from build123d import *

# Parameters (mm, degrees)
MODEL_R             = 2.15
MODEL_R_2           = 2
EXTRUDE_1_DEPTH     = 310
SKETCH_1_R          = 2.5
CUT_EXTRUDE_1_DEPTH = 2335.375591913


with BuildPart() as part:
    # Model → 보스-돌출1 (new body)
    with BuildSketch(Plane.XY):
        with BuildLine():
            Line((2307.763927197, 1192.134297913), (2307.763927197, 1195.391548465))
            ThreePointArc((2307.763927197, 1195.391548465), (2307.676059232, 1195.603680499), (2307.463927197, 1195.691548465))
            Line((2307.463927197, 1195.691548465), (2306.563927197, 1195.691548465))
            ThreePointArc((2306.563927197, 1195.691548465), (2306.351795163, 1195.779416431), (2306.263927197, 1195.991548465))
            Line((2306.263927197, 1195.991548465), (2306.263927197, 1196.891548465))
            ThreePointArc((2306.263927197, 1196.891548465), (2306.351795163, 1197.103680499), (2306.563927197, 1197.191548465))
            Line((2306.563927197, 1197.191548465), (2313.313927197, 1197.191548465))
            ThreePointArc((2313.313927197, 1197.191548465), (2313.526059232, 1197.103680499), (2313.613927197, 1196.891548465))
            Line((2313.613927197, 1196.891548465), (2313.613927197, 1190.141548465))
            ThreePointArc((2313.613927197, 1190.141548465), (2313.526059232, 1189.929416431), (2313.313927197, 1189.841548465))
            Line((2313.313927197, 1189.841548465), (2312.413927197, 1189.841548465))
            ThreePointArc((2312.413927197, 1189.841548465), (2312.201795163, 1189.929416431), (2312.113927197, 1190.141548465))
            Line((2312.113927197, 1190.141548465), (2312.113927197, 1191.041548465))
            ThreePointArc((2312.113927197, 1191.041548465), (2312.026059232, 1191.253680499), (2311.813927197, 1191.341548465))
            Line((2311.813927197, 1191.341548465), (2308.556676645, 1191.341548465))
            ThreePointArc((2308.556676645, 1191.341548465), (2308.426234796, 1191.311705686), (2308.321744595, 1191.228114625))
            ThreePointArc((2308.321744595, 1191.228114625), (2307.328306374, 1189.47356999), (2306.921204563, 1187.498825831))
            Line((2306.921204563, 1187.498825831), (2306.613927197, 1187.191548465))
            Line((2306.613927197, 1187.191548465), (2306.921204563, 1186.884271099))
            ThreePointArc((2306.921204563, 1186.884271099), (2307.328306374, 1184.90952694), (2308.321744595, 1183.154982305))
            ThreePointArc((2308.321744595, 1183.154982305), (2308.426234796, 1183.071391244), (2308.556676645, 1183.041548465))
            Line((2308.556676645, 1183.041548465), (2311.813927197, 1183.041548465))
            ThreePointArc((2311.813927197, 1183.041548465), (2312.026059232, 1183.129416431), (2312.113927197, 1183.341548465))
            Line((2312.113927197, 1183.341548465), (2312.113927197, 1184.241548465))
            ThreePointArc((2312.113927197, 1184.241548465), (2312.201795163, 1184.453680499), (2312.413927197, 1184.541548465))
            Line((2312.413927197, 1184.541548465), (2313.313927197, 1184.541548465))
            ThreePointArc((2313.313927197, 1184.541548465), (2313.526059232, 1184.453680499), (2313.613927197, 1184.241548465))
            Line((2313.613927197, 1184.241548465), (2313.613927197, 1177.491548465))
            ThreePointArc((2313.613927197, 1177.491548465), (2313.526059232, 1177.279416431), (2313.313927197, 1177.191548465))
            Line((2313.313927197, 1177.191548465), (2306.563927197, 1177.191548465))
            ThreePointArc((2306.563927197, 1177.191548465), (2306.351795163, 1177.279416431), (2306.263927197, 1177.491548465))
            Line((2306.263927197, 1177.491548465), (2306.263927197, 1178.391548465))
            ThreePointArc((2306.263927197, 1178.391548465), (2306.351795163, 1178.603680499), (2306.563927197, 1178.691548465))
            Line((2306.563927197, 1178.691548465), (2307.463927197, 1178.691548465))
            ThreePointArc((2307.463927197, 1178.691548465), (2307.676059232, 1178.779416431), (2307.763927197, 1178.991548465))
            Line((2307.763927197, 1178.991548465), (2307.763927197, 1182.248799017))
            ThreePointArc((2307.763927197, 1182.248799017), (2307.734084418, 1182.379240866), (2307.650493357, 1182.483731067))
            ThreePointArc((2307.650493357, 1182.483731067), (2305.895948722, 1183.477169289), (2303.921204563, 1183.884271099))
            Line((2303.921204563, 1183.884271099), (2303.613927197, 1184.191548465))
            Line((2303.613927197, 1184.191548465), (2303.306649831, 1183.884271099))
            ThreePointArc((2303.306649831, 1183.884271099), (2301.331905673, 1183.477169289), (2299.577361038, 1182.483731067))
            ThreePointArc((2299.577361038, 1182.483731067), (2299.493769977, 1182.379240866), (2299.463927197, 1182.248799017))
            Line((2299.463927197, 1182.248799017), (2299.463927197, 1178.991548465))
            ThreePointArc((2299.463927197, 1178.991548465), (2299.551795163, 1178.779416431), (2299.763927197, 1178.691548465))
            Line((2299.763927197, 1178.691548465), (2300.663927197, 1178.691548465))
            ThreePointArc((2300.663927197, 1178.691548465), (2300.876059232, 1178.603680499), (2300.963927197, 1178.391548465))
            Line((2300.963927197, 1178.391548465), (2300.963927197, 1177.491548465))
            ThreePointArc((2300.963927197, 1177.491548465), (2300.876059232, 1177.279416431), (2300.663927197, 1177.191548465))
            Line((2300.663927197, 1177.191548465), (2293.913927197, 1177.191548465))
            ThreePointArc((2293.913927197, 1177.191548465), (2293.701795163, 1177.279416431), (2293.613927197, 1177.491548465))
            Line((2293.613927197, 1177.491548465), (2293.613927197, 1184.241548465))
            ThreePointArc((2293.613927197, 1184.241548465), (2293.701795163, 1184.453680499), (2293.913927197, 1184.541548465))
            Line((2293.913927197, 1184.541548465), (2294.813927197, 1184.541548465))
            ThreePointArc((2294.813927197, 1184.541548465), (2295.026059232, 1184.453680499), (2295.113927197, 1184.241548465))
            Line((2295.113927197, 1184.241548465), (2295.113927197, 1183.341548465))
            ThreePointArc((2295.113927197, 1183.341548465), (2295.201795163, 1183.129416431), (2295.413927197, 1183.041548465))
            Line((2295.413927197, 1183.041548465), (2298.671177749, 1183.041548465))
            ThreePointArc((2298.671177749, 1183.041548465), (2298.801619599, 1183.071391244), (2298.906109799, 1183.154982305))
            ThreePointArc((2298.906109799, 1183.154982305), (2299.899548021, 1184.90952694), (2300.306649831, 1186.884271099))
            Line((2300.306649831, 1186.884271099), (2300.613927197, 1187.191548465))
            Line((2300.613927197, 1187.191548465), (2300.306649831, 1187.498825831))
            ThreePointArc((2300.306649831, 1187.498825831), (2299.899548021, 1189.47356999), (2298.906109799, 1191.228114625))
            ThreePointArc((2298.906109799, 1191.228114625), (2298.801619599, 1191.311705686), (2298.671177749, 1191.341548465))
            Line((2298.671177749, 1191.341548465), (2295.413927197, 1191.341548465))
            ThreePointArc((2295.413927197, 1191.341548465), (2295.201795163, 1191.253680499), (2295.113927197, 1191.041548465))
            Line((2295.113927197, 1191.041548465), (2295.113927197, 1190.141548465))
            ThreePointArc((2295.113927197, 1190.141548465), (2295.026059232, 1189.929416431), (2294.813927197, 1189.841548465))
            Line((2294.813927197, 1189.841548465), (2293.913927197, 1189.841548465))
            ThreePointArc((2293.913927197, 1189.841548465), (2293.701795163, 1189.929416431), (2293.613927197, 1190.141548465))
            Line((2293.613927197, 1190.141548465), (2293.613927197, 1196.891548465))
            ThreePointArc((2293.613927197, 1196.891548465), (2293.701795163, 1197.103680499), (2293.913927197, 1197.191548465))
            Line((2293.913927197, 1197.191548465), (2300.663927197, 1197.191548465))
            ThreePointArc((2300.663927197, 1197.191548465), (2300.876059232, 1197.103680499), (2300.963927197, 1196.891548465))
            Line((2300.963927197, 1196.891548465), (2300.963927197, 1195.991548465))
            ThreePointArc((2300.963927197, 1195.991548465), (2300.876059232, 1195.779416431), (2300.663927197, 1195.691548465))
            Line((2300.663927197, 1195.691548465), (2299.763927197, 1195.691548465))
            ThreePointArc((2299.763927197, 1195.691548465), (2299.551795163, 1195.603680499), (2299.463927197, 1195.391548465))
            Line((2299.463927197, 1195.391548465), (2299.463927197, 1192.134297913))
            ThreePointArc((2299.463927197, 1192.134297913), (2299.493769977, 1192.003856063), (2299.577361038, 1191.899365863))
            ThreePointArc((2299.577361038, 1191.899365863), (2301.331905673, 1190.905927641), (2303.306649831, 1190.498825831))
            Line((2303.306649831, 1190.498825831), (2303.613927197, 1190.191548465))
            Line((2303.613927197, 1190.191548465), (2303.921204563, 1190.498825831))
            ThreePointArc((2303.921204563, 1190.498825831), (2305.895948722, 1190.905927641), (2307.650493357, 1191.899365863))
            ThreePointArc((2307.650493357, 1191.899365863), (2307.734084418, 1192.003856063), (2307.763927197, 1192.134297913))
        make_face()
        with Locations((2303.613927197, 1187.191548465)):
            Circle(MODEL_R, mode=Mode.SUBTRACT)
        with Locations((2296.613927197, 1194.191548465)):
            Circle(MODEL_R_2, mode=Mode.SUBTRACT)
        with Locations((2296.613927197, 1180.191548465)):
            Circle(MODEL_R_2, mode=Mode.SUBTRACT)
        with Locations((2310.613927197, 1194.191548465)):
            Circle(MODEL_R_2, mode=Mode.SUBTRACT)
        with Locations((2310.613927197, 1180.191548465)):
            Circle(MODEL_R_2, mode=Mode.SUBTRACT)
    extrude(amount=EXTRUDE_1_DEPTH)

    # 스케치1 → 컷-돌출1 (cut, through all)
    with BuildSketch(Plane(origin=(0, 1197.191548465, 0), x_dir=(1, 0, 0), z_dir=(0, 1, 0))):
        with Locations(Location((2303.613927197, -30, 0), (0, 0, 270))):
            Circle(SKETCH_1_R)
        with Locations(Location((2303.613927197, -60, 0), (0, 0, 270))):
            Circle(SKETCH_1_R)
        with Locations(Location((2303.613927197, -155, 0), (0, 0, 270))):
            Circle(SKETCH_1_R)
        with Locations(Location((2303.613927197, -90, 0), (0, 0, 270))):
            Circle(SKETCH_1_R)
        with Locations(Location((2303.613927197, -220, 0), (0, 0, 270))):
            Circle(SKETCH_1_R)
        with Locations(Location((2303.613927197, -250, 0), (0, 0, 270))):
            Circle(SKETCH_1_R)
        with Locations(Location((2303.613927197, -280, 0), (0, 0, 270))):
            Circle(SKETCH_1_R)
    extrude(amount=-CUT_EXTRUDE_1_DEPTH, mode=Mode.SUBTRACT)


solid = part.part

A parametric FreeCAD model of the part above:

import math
import FreeCAD as App
import Part
import Sketcher

V = App.Vector

doc = App.newDocument("Part")
body = doc.addObject("PartDesign::Body", "Body")

sketch1 = doc.addObject("Sketcher::SketchObject", "Sketch")
body.addObject(sketch1)
sketch1.AttachmentSupport = (doc.XY_Plane, [""])
sketch1.MapMode = "FlatFace"
sketch1.addGeometry(Part.LineSegment(V(2307.763927, 1195.391548, 0), V(2307.763927, 1192.134298, 0)), False)
sketch1.addGeometry(Part.ArcOfCircle(Part.Circle(V(2307.463927, 1192.134298, 0), V(0, 0, 1), 0.3), math.radians(-51.545921), math.radians(0)), False)
sketch1.addGeometry(Part.ArcOfCircle(Part.Circle(V(2303.613927, 1196.982382, 0), V(0, 0, 1), 6.490833), math.radians(-87.286592), math.radians(-51.545921)), False)
sketch1.addGeometry(Part.LineSegment(V(2303.921205, 1190.498826, 0), V(2303.613927, 1190.191548, 0)), False)
sketch1.addGeometry(Part.LineSegment(V(2303.613927, 1190.191548, 0), V(2303.30665, 1190.498826, 0)), False)
sketch1.addGeometry(Part.ArcOfCircle(Part.Circle(V(2303.613927, 1196.982382, 0), V(0, 0, 1), 6.490833), math.radians(-128.454079), math.radians(-92.713408)), False)
sketch1.addGeometry(Part.ArcOfCircle(Part.Circle(V(2299.763927, 1192.134298, 0), V(0, 0, 1), 0.3), math.radians(-180), math.radians(-128.454079)), False)
sketch1.addGeometry(Part.LineSegment(V(2299.463927, 1192.134298, 0), V(2299.463927, 1195.391548, 0)), False)
sketch1.addGeometry(Part.ArcOfCircle(Part.Circle(V(2299.763927, 1195.391548, 0), V(0, 0, 1), 0.3), math.radians(90), math.radians(180)), False)
sketch1.addGeometry(Part.LineSegment(V(2299.763927, 1195.691548, 0), V(2300.663927, 1195.691548, 0)), False)
sketch1.addGeometry(Part.ArcOfCircle(Part.Circle(V(2300.663927, 1195.991548, 0), V(0, 0, 1), 0.3), math.radians(-90), math.radians(0)), False)
sketch1.addGeometry(Part.LineSegment(V(2300.963927, 1195.991548, 0), V(2300.963927, 1196.891548, 0)), False)
sketch1.addGeometry(Part.ArcOfCircle(Part.Circle(V(2300.663927, 1196.891548, 0), V(0, 0, 1), 0.3), math.radians(0), math.radians(90)), False)
sketch1.addGeometry(Part.LineSegment(V(2300.663927, 1197.191548, 0), V(2293.913927, 1197.191548, 0)), False)
sketch1.addGeometry(Part.ArcOfCircle(Part.Circle(V(2293.913927, 1196.891548, 0), V(0, 0, 1), 0.3), math.radians(90), math.radians(180)), False)
sketch1.addGeometry(Part.LineSegment(V(2293.613927, 1196.891548, 0), V(2293.613927, 1190.141548, 0)), False)
sketch1.addGeometry(Part.ArcOfCircle(Part.Circle(V(2293.913927, 1190.141548, 0), V(0, 0, 1), 0.3), math.radians(-180), math.radians(-90)), False)
sketch1.addGeometry(Part.LineSegment(V(2293.913927, 1189.841548, 0), V(2294.813927, 1189.841548, 0)), False)
sketch1.addGeometry(Part.ArcOfCircle(Part.Circle(V(2294.813927, 1190.141548, 0), V(0, 0, 1), 0.3), math.radians(-90), math.radians(0)), False)
sketch1.addGeometry(Part.LineSegment(V(2295.113927, 1190.141548, 0), V(2295.113927, 1191.041548, 0)), False)
sketch1.addGeometry(Part.ArcOfCircle(Part.Circle(V(2295.413927, 1191.041548, 0), V(0, 0, 1), 0.3), math.radians(90), math.radians(180)), False)
sketch1.addGeometry(Part.LineSegment(V(2295.413927, 1191.341548, 0), V(2298.671178, 1191.341548, 0)), False)
sketch1.addGeometry(Part.ArcOfCircle(Part.Circle(V(2298.671178, 1191.041548, 0), V(0, 0, 1), 0.3), math.radians(38.454079), math.radians(90)), False)
sketch1.addGeometry(Part.ArcOfCircle(Part.Circle(V(2293.823094, 1187.191548, 0), V(0, 0, 1), 6.490833), math.radians(2.713408), math.radians(38.454079)), False)
sketch1.addGeometry(Part.LineSegment(V(2300.30665, 1187.498826, 0), V(2300.613927, 1187.191548, 0)), False)
sketch1.addGeometry(Part.LineSegment(V(2300.613927, 1187.191548, 0), V(2300.30665, 1186.884271, 0)), False)
sketch1.addGeometry(Part.ArcOfCircle(Part.Circle(V(2293.823094, 1187.191548, 0), V(0, 0, 1), 6.490833), math.radians(-38.454079), math.radians(-2.713408)), False)
sketch1.addGeometry(Part.ArcOfCircle(Part.Circle(V(2298.671178, 1183.341548, 0), V(0, 0, 1), 0.3), math.radians(-90), math.radians(-38.454079)), False)
sketch1.addGeometry(Part.LineSegment(V(2298.671178, 1183.041548, 0), V(2295.413927, 1183.041548, 0)), False)
sketch1.addGeometry(Part.ArcOfCircle(Part.Circle(V(2295.413927, 1183.341548, 0), V(0, 0, 1), 0.3), math.radians(-180), math.radians(-90)), False)
sketch1.addGeometry(Part.LineSegment(V(2295.113927, 1183.341548, 0), V(2295.113927, 1184.241548, 0)), False)
sketch1.addGeometry(Part.ArcOfCircle(Part.Circle(V(2294.813927, 1184.241548, 0), V(0, 0, 1), 0.3), math.radians(0), math.radians(90)), False)
sketch1.addGeometry(Part.LineSegment(V(2294.813927, 1184.541548, 0), V(2293.913927, 1184.541548, 0)), False)
sketch1.addGeometry(Part.ArcOfCircle(Part.Circle(V(2293.913927, 1184.241548, 0), V(0, 0, 1), 0.3), math.radians(90), math.radians(180)), False)
sketch1.addGeometry(Part.LineSegment(V(2293.613927, 1184.241548, 0), V(2293.613927, 1177.491548, 0)), False)
sketch1.addGeometry(Part.ArcOfCircle(Part.Circle(V(2293.913927, 1177.491548, 0), V(0, 0, 1), 0.3), math.radians(-180), math.radians(-90)), False)
sketch1.addGeometry(Part.LineSegment(V(2293.913927, 1177.191548, 0), V(2300.663927, 1177.191548, 0)), False)
sketch1.addGeometry(Part.ArcOfCircle(Part.Circle(V(2300.663927, 1177.491548, 0), V(0, 0, 1), 0.3), math.radians(-90), math.radians(0)), False)
sketch1.addGeometry(Part.LineSegment(V(2300.963927, 1177.491548, 0), V(2300.963927, 1178.391548, 0)), False)
sketch1.addGeometry(Part.ArcOfCircle(Part.Circle(V(2300.663927, 1178.391548, 0), V(0, 0, 1), 0.3), math.radians(0), math.radians(90)), False)
sketch1.addGeometry(Part.LineSegment(V(2300.663927, 1178.691548, 0), V(2299.763927, 1178.691548, 0)), False)
sketch1.addGeometry(Part.ArcOfCircle(Part.Circle(V(2299.763927, 1178.991548, 0), V(0, 0, 1), 0.3), math.radians(-180), math.radians(-90)), False)
sketch1.addGeometry(Part.LineSegment(V(2299.463927, 1178.991548, 0), V(2299.463927, 1182.248799, 0)), False)
sketch1.addGeometry(Part.ArcOfCircle(Part.Circle(V(2299.763927, 1182.248799, 0), V(0, 0, 1), 0.3), math.radians(128.45408), math.radians(179.999999)), False)
sketch1.addGeometry(Part.ArcOfCircle(Part.Circle(V(2303.613927, 1177.400715, 0), V(0, 0, 1), 6.490833), math.radians(92.713408), math.radians(128.454079)), False)
sketch1.addGeometry(Part.LineSegment(V(2303.30665, 1183.884271, 0), V(2303.613927, 1184.191548, 0)), False)
sketch1.addGeometry(Part.LineSegment(V(2303.613927, 1184.191548, 0), V(2303.921205, 1183.884271, 0)), False)
sketch1.addGeometry(Part.ArcOfCircle(Part.Circle(V(2303.613927, 1177.400715, 0), V(0, 0, 1), 6.490833), math.radians(51.545921), math.radians(87.286592)), False)
sketch1.addGeometry(Part.ArcOfCircle(Part.Circle(V(2307.463927, 1182.248799, 0), V(0, 0, 1), 0.3), math.radians(0), math.radians(51.545921)), False)
sketch1.addGeometry(Part.LineSegment(V(2307.763927, 1182.248799, 0), V(2307.763927, 1178.991548, 0)), False)
sketch1.addGeometry(Part.ArcOfCircle(Part.Circle(V(2307.463927, 1178.991548, 0), V(0, 0, 1), 0.3), math.radians(-90), math.radians(0)), False)
sketch1.addGeometry(Part.LineSegment(V(2307.463927, 1178.691548, 0), V(2306.563927, 1178.691548, 0)), False)
sketch1.addGeometry(Part.ArcOfCircle(Part.Circle(V(2306.563927, 1178.391548, 0), V(0, 0, 1), 0.3), math.radians(90), math.radians(180)), False)
sketch1.addGeometry(Part.LineSegment(V(2306.263927, 1178.391548, 0), V(2306.263927, 1177.491548, 0)), False)
sketch1.addGeometry(Part.ArcOfCircle(Part.Circle(V(2306.563927, 1177.491548, 0), V(0, 0, 1), 0.3), math.radians(-180), math.radians(-90)), False)
sketch1.addGeometry(Part.LineSegment(V(2306.563927, 1177.191548, 0), V(2313.313927, 1177.191548, 0)), False)
sketch1.addGeometry(Part.ArcOfCircle(Part.Circle(V(2313.313927, 1177.491548, 0), V(0, 0, 1), 0.3), math.radians(-90), math.radians(0)), False)
sketch1.addGeometry(Part.LineSegment(V(2313.613927, 1177.491548, 0), V(2313.613927, 1184.241548, 0)), False)
sketch1.addGeometry(Part.ArcOfCircle(Part.Circle(V(2313.313927, 1184.241548, 0), V(0, 0, 1), 0.3), math.radians(0), math.radians(90)), False)
sketch1.addGeometry(Part.LineSegment(V(2313.313927, 1184.541548, 0), V(2312.413927, 1184.541548, 0)), False)
sketch1.addGeometry(Part.ArcOfCircle(Part.Circle(V(2312.413927, 1184.241548, 0), V(0, 0, 1), 0.3), math.radians(90), math.radians(180)), False)
sketch1.addGeometry(Part.LineSegment(V(2312.113927, 1184.241548, 0), V(2312.113927, 1183.341548, 0)), False)
sketch1.addGeometry(Part.ArcOfCircle(Part.Circle(V(2311.813927, 1183.341548, 0), V(0, 0, 1), 0.3), math.radians(-90), math.radians(0)), False)
sketch1.addGeometry(Part.LineSegment(V(2311.813927, 1183.041548, 0), V(2308.556677, 1183.041548, 0)), False)
sketch1.addGeometry(Part.ArcOfCircle(Part.Circle(V(2308.556677, 1183.341548, 0), V(0, 0, 1), 0.3), math.radians(-141.545921), math.radians(-90)), False)
sketch1.addGeometry(Part.ArcOfCircle(Part.Circle(V(2313.404761, 1187.191548, 0), V(0, 0, 1), 6.490833), math.radians(-177.286592), math.radians(-141.545921)), False)
sketch1.addGeometry(Part.LineSegment(V(2306.921205, 1186.884271, 0), V(2306.613927, 1187.191548, 0)), False)
sketch1.addGeometry(Part.LineSegment(V(2306.613927, 1187.191548, 0), V(2306.921205, 1187.498826, 0)), False)
sketch1.addGeometry(Part.ArcOfCircle(Part.Circle(V(2313.404761, 1187.191548, 0), V(0, 0, 1), 6.490833), math.radians(141.545921), math.radians(177.286592)), False)
sketch1.addGeometry(Part.ArcOfCircle(Part.Circle(V(2308.556677, 1191.041548, 0), V(0, 0, 1), 0.3), math.radians(90), math.radians(141.545921)), False)
sketch1.addGeometry(Part.LineSegment(V(2308.556677, 1191.341548, 0), V(2311.813927, 1191.341548, 0)), False)
sketch1.addGeometry(Part.ArcOfCircle(Part.Circle(V(2311.813927, 1191.041548, 0), V(0, 0, 1), 0.3), math.radians(0), math.radians(90)), False)
sketch1.addGeometry(Part.LineSegment(V(2312.113927, 1191.041548, 0), V(2312.113927, 1190.141548, 0)), False)
sketch1.addGeometry(Part.ArcOfCircle(Part.Circle(V(2312.413927, 1190.141548, 0), V(0, 0, 1), 0.3), math.radians(-180), math.radians(-90)), False)
sketch1.addGeometry(Part.LineSegment(V(2312.413927, 1189.841548, 0), V(2313.313927, 1189.841548, 0)), False)
sketch1.addGeometry(Part.ArcOfCircle(Part.Circle(V(2313.313927, 1190.141548, 0), V(0, 0, 1), 0.3), math.radians(-90), math.radians(0)), False)
sketch1.addGeometry(Part.LineSegment(V(2313.613927, 1190.141548, 0), V(2313.613927, 1196.891548, 0)), False)
sketch1.addGeometry(Part.ArcOfCircle(Part.Circle(V(2313.313927, 1196.891548, 0), V(0, 0, 1), 0.3), math.radians(0), math.radians(90)), False)
sketch1.addGeometry(Part.LineSegment(V(2313.313927, 1197.191548, 0), V(2306.563927, 1197.191548, 0)), False)
sketch1.addGeometry(Part.ArcOfCircle(Part.Circle(V(2306.563927, 1196.891548, 0), V(0, 0, 1), 0.3), math.radians(90), math.radians(180)), False)
sketch1.addGeometry(Part.LineSegment(V(2306.263927, 1196.891548, 0), V(2306.263927, 1195.991548, 0)), False)
sketch1.addGeometry(Part.ArcOfCircle(Part.Circle(V(2306.563927, 1195.991548, 0), V(0, 0, 1), 0.3), math.radians(-180), math.radians(-90)), False)
sketch1.addGeometry(Part.LineSegment(V(2306.563927, 1195.691548, 0), V(2307.463927, 1195.691548, 0)), False)
sketch1.addGeometry(Part.ArcOfCircle(Part.Circle(V(2307.463927, 1195.391548, 0), V(0, 0, 1), 0.3), math.radians(0), math.radians(90)), False)
sketch1.addGeometry(Part.Circle(V(2310.613927, 1180.191548, 0), V(0, 0, 1), 2), False)
sketch1.addGeometry(Part.Circle(V(2296.613927, 1180.191548, 0), V(0, 0, 1), 2), False)
sketch1.addGeometry(Part.Circle(V(2310.613927, 1194.191548, 0), V(0, 0, 1), 2), False)
sketch1.addGeometry(Part.Circle(V(2303.613927, 1187.191548, 0), V(0, 0, 1), 2.15), False)
sketch1.addGeometry(Part.Circle(V(2296.613927, 1194.191548, 0), V(0, 0, 1), 2), False)
sketch1.addConstraint(Sketcher.Constraint("Tangent", 0, 2, 1, 2))
sketch1.addConstraint(Sketcher.Constraint("Tangent", 1, 1, 2, 2))
sketch1.addConstraint(Sketcher.Constraint("Coincident", 2, 1, 3, 1))
sketch1.addConstraint(Sketcher.Constraint("Coincident", 3, 2, 4, 1))
sketch1.addConstraint(Sketcher.Constraint("Coincident", 4, 2, 5, 2))
sketch1.addConstraint(Sketcher.Constraint("Tangent", 5, 1, 6, 2))
sketch1.addConstraint(Sketcher.Constraint("Tangent", 6, 1, 7, 1))
sketch1.addConstraint(Sketcher.Constraint("Tangent", 7, 2, 8, 2))
sketch1.addConstraint(Sketcher.Constraint("Tangent", 8, 1, 9, 1))
sketch1.addConstraint(Sketcher.Constraint("Tangent", 9, 2, 10, 1))
sketch1.addConstraint(Sketcher.Constraint("Tangent", 10, 2, 11, 1))
sketch1.addConstraint(Sketcher.Constraint("Tangent", 11, 2, 12, 1))
sketch1.addConstraint(Sketcher.Constraint("Tangent", 12, 2, 13, 1))
sketch1.addConstraint(Sketcher.Constraint("Tangent", 13, 2, 14, 1))
sketch1.addConstraint(Sketcher.Constraint("Tangent", 14, 2, 15, 1))
sketch1.addConstraint(Sketcher.Constraint("Tangent", 15, 2, 16, 1))
sketch1.addConstraint(Sketcher.Constraint("Tangent", 16, 2, 17, 1))
sketch1.addConstraint(Sketcher.Constraint("Tangent", 17, 2, 18, 1))
sketch1.addConstraint(Sketcher.Constraint("Tangent", 18, 2, 19, 1))
sketch1.addConstraint(Sketcher.Constraint("Tangent", 19, 2, 20, 2))
sketch1.addConstraint(Sketcher.Constraint("Tangent", 20, 1, 21, 1))
sketch1.addConstraint(Sketcher.Constraint("Tangent", 21, 2, 22, 2))
sketch1.addConstraint(Sketcher.Constraint("Tangent", 22, 1, 23, 2))
sketch1.addConstraint(Sketcher.Constraint("Coincident", 23, 1, 24, 1))
sketch1.addConstraint(Sketcher.Constraint("Coincident", 24, 2, 25, 1))
sketch1.addConstraint(Sketcher.Constraint("Coincident", 25, 2, 26, 2))
sketch1.addConstraint(Sketcher.Constraint("Tangent", 26, 1, 27, 2))
sketch1.addConstraint(Sketcher.Constraint("Tangent", 27, 1, 28, 1))
sketch1.addConstraint(Sketcher.Constraint("Tangent", 28, 2, 29, 2))
sketch1.addConstraint(Sketcher.Constraint("Tangent", 29, 1, 30, 1))
sketch1.addConstraint(Sketcher.Constraint("Tangent", 30, 2, 31, 1))
sketch1.addConstraint(Sketcher.Constraint("Tangent", 31, 2, 32, 1))
sketch1.addConstraint(Sketcher.Constraint("Tangent", 32, 2, 33, 1))
sketch1.addConstraint(Sketcher.Constraint("Tangent", 33, 2, 34, 1))
sketch1.addConstraint(Sketcher.Constraint("Tangent", 34, 2, 35, 1))
sketch1.addConstraint(Sketcher.Constraint("Tangent", 35, 2, 36, 1))
sketch1.addConstraint(Sketcher.Constraint("Tangent", 36, 2, 37, 1))
sketch1.addConstraint(Sketcher.Constraint("Tangent", 37, 2, 38, 1))
sketch1.addConstraint(Sketcher.Constraint("Tangent", 38, 2, 39, 1))
sketch1.addConstraint(Sketcher.Constraint("Tangent", 39, 2, 40, 1))
sketch1.addConstraint(Sketcher.Constraint("Tangent", 40, 2, 41, 2))
sketch1.addConstraint(Sketcher.Constraint("Tangent", 41, 1, 42, 1))
sketch1.addConstraint(Sketcher.Constraint("Tangent", 42, 2, 43, 2))
sketch1.addConstraint(Sketcher.Constraint("Tangent", 43, 1, 44, 2))
sketch1.addConstraint(Sketcher.Constraint("Coincident", 44, 1, 45, 1))
sketch1.addConstraint(Sketcher.Constraint("Coincident", 45, 2, 46, 1))
sketch1.addConstraint(Sketcher.Constraint("Coincident", 46, 2, 47, 2))
sketch1.addConstraint(Sketcher.Constraint("Tangent", 47, 1, 48, 2))
sketch1.addConstraint(Sketcher.Constraint("Tangent", 48, 1, 49, 1))
sketch1.addConstraint(Sketcher.Constraint("Tangent", 49, 2, 50, 2))
sketch1.addConstraint(Sketcher.Constraint("Tangent", 50, 1, 51, 1))
sketch1.addConstraint(Sketcher.Constraint("Tangent", 51, 2, 52, 1))
sketch1.addConstraint(Sketcher.Constraint("Tangent", 52, 2, 53, 1))
sketch1.addConstraint(Sketcher.Constraint("Tangent", 53, 2, 54, 1))
sketch1.addConstraint(Sketcher.Constraint("Tangent", 54, 2, 55, 1))
sketch1.addConstraint(Sketcher.Constraint("Tangent", 55, 2, 56, 1))
sketch1.addConstraint(Sketcher.Constraint("Tangent", 56, 2, 57, 1))
sketch1.addConstraint(Sketcher.Constraint("Tangent", 57, 2, 58, 1))
sketch1.addConstraint(Sketcher.Constraint("Tangent", 58, 2, 59, 1))
sketch1.addConstraint(Sketcher.Constraint("Tangent", 59, 2, 60, 1))
sketch1.addConstraint(Sketcher.Constraint("Tangent", 60, 2, 61, 1))
sketch1.addConstraint(Sketcher.Constraint("Tangent", 61, 2, 62, 2))
sketch1.addConstraint(Sketcher.Constraint("Tangent", 62, 1, 63, 1))
sketch1.addConstraint(Sketcher.Constraint("Tangent", 63, 2, 64, 2))
sketch1.addConstraint(Sketcher.Constraint("Tangent", 64, 1, 65, 2))
sketch1.addConstraint(Sketcher.Constraint("Coincident", 65, 1, 66, 1))
sketch1.addConstraint(Sketcher.Constraint("Coincident", 66, 2, 67, 1))
sketch1.addConstraint(Sketcher.Constraint("Coincident", 67, 2, 68, 2))
sketch1.addConstraint(Sketcher.Constraint("Tangent", 68, 1, 69, 2))
sketch1.addConstraint(Sketcher.Constraint("Tangent", 69, 1, 70, 1))
sketch1.addConstraint(Sketcher.Constraint("Tangent", 70, 2, 71, 2))
sketch1.addConstraint(Sketcher.Constraint("Tangent", 71, 1, 72, 1))
sketch1.addConstraint(Sketcher.Constraint("Tangent", 72, 2, 73, 1))
sketch1.addConstraint(Sketcher.Constraint("Tangent", 73, 2, 74, 1))
sketch1.addConstraint(Sketcher.Constraint("Tangent", 74, 2, 75, 1))
sketch1.addConstraint(Sketcher.Constraint("Tangent", 75, 2, 76, 1))
sketch1.addConstraint(Sketcher.Constraint("Tangent", 76, 2, 77, 1))
sketch1.addConstraint(Sketcher.Constraint("Tangent", 77, 2, 78, 1))
sketch1.addConstraint(Sketcher.Constraint("Tangent", 78, 2, 79, 1))
sketch1.addConstraint(Sketcher.Constraint("Tangent", 79, 2, 80, 1))
sketch1.addConstraint(Sketcher.Constraint("Tangent", 80, 2, 81, 1))
sketch1.addConstraint(Sketcher.Constraint("Tangent", 81, 2, 82, 1))
sketch1.addConstraint(Sketcher.Constraint("Tangent", 82, 2, 83, 2))
sketch1.addConstraint(Sketcher.Constraint("Tangent", 83, 1, 0, 1))
sketch1.addConstraint(Sketcher.Constraint("Vertical", 0))
sketch1.addConstraint(Sketcher.Constraint("Vertical", 7))
sketch1.addConstraint(Sketcher.Constraint("Horizontal", 9))
sketch1.addConstraint(Sketcher.Constraint("Vertical", 11))
sketch1.addConstraint(Sketcher.Constraint("Horizontal", 13))
sketch1.addConstraint(Sketcher.Constraint("Vertical", 15))
sketch1.addConstraint(Sketcher.Constraint("Horizontal", 17))
sketch1.addConstraint(Sketcher.Constraint("Vertical", 19))
sketch1.addConstraint(Sketcher.Constraint("Horizontal", 21))
sketch1.addConstraint(Sketcher.Constraint("Horizontal", 28))
sketch1.addConstraint(Sketcher.Constraint("Vertical", 30))
sketch1.addConstraint(Sketcher.Constraint("Horizontal", 32))
sketch1.addConstraint(Sketcher.Constraint("Vertical", 34))
sketch1.addConstraint(Sketcher.Constraint("Horizontal", 36))
sketch1.addConstraint(Sketcher.Constraint("Vertical", 38))
sketch1.addConstraint(Sketcher.Constraint("Horizontal", 40))
sketch1.addConstraint(Sketcher.Constraint("Vertical", 42))
sketch1.addConstraint(Sketcher.Constraint("Vertical", 49))
sketch1.addConstraint(Sketcher.Constraint("Horizontal", 51))
sketch1.addConstraint(Sketcher.Constraint("Vertical", 53))
sketch1.addConstraint(Sketcher.Constraint("Horizontal", 55))
sketch1.addConstraint(Sketcher.Constraint("Vertical", 57))
sketch1.addConstraint(Sketcher.Constraint("Horizontal", 59))
sketch1.addConstraint(Sketcher.Constraint("Vertical", 61))
sketch1.addConstraint(Sketcher.Constraint("Horizontal", 63))
sketch1.addConstraint(Sketcher.Constraint("Horizontal", 70))
sketch1.addConstraint(Sketcher.Constraint("Vertical", 72))
sketch1.addConstraint(Sketcher.Constraint("Horizontal", 74))
sketch1.addConstraint(Sketcher.Constraint("Vertical", 76))
sketch1.addConstraint(Sketcher.Constraint("Horizontal", 78))
sketch1.addConstraint(Sketcher.Constraint("Vertical", 80))
sketch1.addConstraint(Sketcher.Constraint("Horizontal", 82))
sketch1.addConstraint(Sketcher.Constraint("Coincident", 5, 3, 2, 3))
sketch1.addConstraint(Sketcher.Constraint("Coincident", 26, 3, 23, 3))
sketch1.addConstraint(Sketcher.Constraint("Coincident", 47, 3, 44, 3))
sketch1.addConstraint(Sketcher.Constraint("Coincident", 68, 3, 65, 3))
sketch1.addConstraint(Sketcher.Constraint("Equal", 2, 5))
sketch1.addConstraint(Sketcher.Constraint("Equal", 1, 6))
sketch1.addConstraint(Sketcher.Constraint("Equal", 6, 8))
sketch1.addConstraint(Sketcher.Constraint("Equal", 8, 10))
sketch1.addConstraint(Sketcher.Constraint("Equal", 10, 12))
sketch1.addConstraint(Sketcher.Constraint("Equal", 12, 14))
sketch1.addConstraint(Sketcher.Constraint("Equal", 14, 16))
sketch1.addConstraint(Sketcher.Constraint("Equal", 16, 18))
sketch1.addConstraint(Sketcher.Constraint("Equal", 18, 20))
sketch1.addConstraint(Sketcher.Constraint("Equal", 20, 22))
sketch1.addConstraint(Sketcher.Constraint("Equal", 5, 23))
sketch1.addConstraint(Sketcher.Constraint("Equal", 23, 26))
sketch1.addConstraint(Sketcher.Constraint("Equal", 22, 27))
sketch1.addConstraint(Sketcher.Constraint("Equal", 27, 29))
sketch1.addConstraint(Sketcher.Constraint("Equal", 29, 31))
sketch1.addConstraint(Sketcher.Constraint("Equal", 31, 33))
sketch1.addConstraint(Sketcher.Constraint("Equal", 33, 35))
sketch1.addConstraint(Sketcher.Constraint("Equal", 35, 37))
sketch1.addConstraint(Sketcher.Constraint("Equal", 37, 39))
sketch1.addConstraint(Sketcher.Constraint("Equal", 39, 41))
sketch1.addConstraint(Sketcher.Constraint("Equal", 41, 43))
sketch1.addConstraint(Sketcher.Constraint("Equal", 26, 44))
sketch1.addConstraint(Sketcher.Constraint("Equal", 44, 47))
sketch1.addConstraint(Sketcher.Constraint("Equal", 43, 48))
sketch1.addConstraint(Sketcher.Constraint("Equal", 48, 50))
sketch1.addConstraint(Sketcher.Constraint("Equal", 50, 52))
sketch1.addConstraint(Sketcher.Constraint("Equal", 52, 54))
sketch1.addConstraint(Sketcher.Constraint("Equal", 54, 56))
sketch1.addConstraint(Sketcher.Constraint("Equal", 56, 58))
sketch1.addConstraint(Sketcher.Constraint("Equal", 58, 60))
sketch1.addConstraint(Sketcher.Constraint("Equal", 60, 62))
sketch1.addConstraint(Sketcher.Constraint("Equal", 62, 64))
sketch1.addConstraint(Sketcher.Constraint("Equal", 47, 65))
sketch1.addConstraint(Sketcher.Constraint("Equal", 65, 68))
sketch1.addConstraint(Sketcher.Constraint("Equal", 64, 69))
sketch1.addConstraint(Sketcher.Constraint("Equal", 69, 71))
sketch1.addConstraint(Sketcher.Constraint("Equal", 71, 73))
sketch1.addConstraint(Sketcher.Constraint("Equal", 73, 75))
sketch1.addConstraint(Sketcher.Constraint("Equal", 75, 77))
sketch1.addConstraint(Sketcher.Constraint("Equal", 77, 79))
sketch1.addConstraint(Sketcher.Constraint("Equal", 79, 81))
sketch1.addConstraint(Sketcher.Constraint("Equal", 81, 83))
sketch1.addConstraint(Sketcher.Constraint("Equal", 84, 85))
sketch1.addConstraint(Sketcher.Constraint("Equal", 85, 86))
sketch1.addConstraint(Sketcher.Constraint("Equal", 86, 88))
sketch1.addConstraint(Sketcher.Constraint("Perpendicular", 3, 4))
sketch1.addConstraint(Sketcher.Constraint("Parallel", 4, 24))
sketch1.addConstraint(Sketcher.Constraint("Perpendicular", 24, 25))
sketch1.addConstraint(Sketcher.Constraint("Parallel", 25, 45))
sketch1.addConstraint(Sketcher.Constraint("Perpendicular", 45, 46))
sketch1.addConstraint(Sketcher.Constraint("Parallel", 46, 66))
sketch1.addConstraint(Sketcher.Constraint("Perpendicular", 66, 67))
sketch1.addConstraint(Sketcher.Constraint("Horizontal", 1, 3, 6, 3))
sketch1.addConstraint(Sketcher.Constraint("Horizontal", 43, 3, 48, 3))
sketch1.addConstraint(Sketcher.Constraint("Horizontal", 41, 3, 50, 3))
sketch1.addConstraint(Sketcher.Constraint("Horizontal", 37, 3, 54, 3))
sketch1.addConstraint(Sketcher.Constraint("Horizontal", 33, 3, 58, 3))
sketch1.addConstraint(Sketcher.Constraint("Horizontal", 29, 3, 62, 3))
sketch1.addConstraint(Sketcher.Constraint("Horizontal", 26, 3, 65, 3))
sketch1.addConstraint(Sketcher.Constraint("Horizontal", 22, 3, 69, 3))
sketch1.addConstraint(Sketcher.Constraint("Horizontal", 18, 3, 73, 3))
sketch1.addConstraint(Sketcher.Constraint("Horizontal", 14, 3, 77, 3))
sketch1.addConstraint(Sketcher.Constraint("Horizontal", 10, 3, 81, 3))
sketch1.addConstraint(Sketcher.Constraint("Horizontal", 84, 3, 85, 3))
sketch1.addConstraint(Sketcher.Constraint("Horizontal", 68, 3, 87, 3))
sketch1.addConstraint(Sketcher.Constraint("Horizontal", 86, 3, 88, 3))
sketch1.addConstraint(Sketcher.Constraint("Horizontal", 2, 1, 4, 2))
sketch1.addConstraint(Sketcher.Constraint("Horizontal", 87, 3, 24, 2))
sketch1.addConstraint(Sketcher.Constraint("Horizontal", 44, 1, 46, 2))
sketch1.addConstraint(Sketcher.Constraint("Horizontal", 25, 2, 65, 1))
sketch1.addConstraint(Sketcher.Constraint("Horizontal", 24, 2, 66, 2))
sketch1.addConstraint(Sketcher.Constraint("Horizontal", 23, 1, 67, 2))
sketch1.addConstraint(Sketcher.Constraint("Vertical", 22, 3, 27, 3))
sketch1.addConstraint(Sketcher.Constraint("Vertical", 20, 3, 29, 3))
sketch1.addConstraint(Sketcher.Constraint("Vertical", 16, 3, 33, 3))
sketch1.addConstraint(Sketcher.Constraint("Vertical", 12, 3, 37, 3))
sketch1.addConstraint(Sketcher.Constraint("Vertical", 8, 3, 41, 3))
sketch1.addConstraint(Sketcher.Constraint("Vertical", 5, 3, 44, 3))
sketch1.addConstraint(Sketcher.Constraint("Vertical", 62, 3, 71, 3))
sketch1.addConstraint(Sketcher.Constraint("Vertical", 58, 3, 75, 3))
sketch1.addConstraint(Sketcher.Constraint("Vertical", 54, 3, 79, 3))
sketch1.addConstraint(Sketcher.Constraint("Vertical", 84, 3, 86, 3))
sketch1.addConstraint(Sketcher.Constraint("Vertical", 47, 3, 87, 3))
sketch1.addConstraint(Sketcher.Constraint("Vertical", 85, 3, 88, 3))
sketch1.addConstraint(Sketcher.Constraint("Vertical", 4, 2, 44, 1))
sketch1.addConstraint(Sketcher.Constraint("Equal", 9, 17))
sketch1.addConstraint(Sketcher.Constraint("Equal", 40, 51))
sketch1.addConstraint(Sketcher.Constraint("Equal", 36, 55))
sketch1.addConstraint(Sketcher.Constraint("Equal", 51, 59))
sketch1.addConstraint(Sketcher.Constraint("Equal", 28, 63))
sketch1.addConstraint(Sketcher.Constraint("Equal", 70, 0))
sketch1.addConstraint(Sketcher.Constraint("Equal", 82, 11))
sketch1.addConstraint(Sketcher.Constraint("Equal", 78, 15))
sketch1.addConstraint(Sketcher.Constraint("Equal", 11, 19))
sketch1.addConstraint(Sketcher.Constraint("Equal", 19, 30))
sketch1.addConstraint(Sketcher.Constraint("Equal", 15, 34))
sketch1.addConstraint(Sketcher.Constraint("Equal", 30, 38))
sketch1.addConstraint(Sketcher.Constraint("Equal", 7, 42))
sketch1.addConstraint(Sketcher.Constraint("Equal", 4, 24))
sketch1.addConstraint(Sketcher.Constraint("Diameter", 84, 4.0))
sketch1.addConstraint(Sketcher.Constraint("Diameter", 87, 4.3))
sketch1.addConstraint(Sketcher.Constraint("Radius", 1, 0.3))
sketch1.addConstraint(Sketcher.Constraint("DistanceX", 9, 1, 9, 2, 0.9))
sketch1.addConstraint(Sketcher.Constraint("DistanceX", 13, 2, 13, 1, 6.75))
sketch1.addConstraint(Sketcher.Constraint("Radius", 2, 6.490833))
sketch1.addConstraint(Sketcher.Constraint("DistanceX", 21, 1, 21, 2, 3.257251))
sketch1.addConstraint(Sketcher.Constraint("DistanceY", -1, 1, 43, 3, 1182.248799))
sketch1.addConstraint(Sketcher.Constraint("DistanceY", -1, 1, 2, 3, 1196.982382))
sketch1.addConstraint(Sketcher.Constraint("DistanceY", -1, 1, 8, 3, 1195.391548))
sketch1.addConstraint(Sketcher.Constraint("DistanceX", -1, 1, 65, 3, 2313.404761))
sketch1.addConstraint(Sketcher.Constraint("DistanceY", -1, 1, 84, 3, 1180.191548))
sketch1.addConstraint(Sketcher.Constraint("DistanceY", -1, 1, 86, 3, 1194.191548))
sketch1.addConstraint(Sketcher.Constraint("DistanceY", -1, 1, 3, 2, 1190.191548))
sketch1.addConstraint(Sketcher.Constraint("DistanceX", -1, 1, 84, 3, 2310.613927))
sketch1.addConstraint(Sketcher.Constraint("DistanceX", -1, 1, 85, 3, 2296.613927))
pad1 = doc.addObject("PartDesign::Pad", "Pad")
body.addObject(pad1)
pad1.Profile = sketch1
pad1.Length = 310

sketch2 = doc.addObject("Sketcher::SketchObject", "Sketch001")
body.addObject(sketch2)
sketch2.AttachmentSupport = (doc.XZ_Plane, [""])
sketch2.MapMode = "FlatFace"
sketch2.AttachmentOffset = App.Placement(V(0, 0, -1197.191548), App.Rotation())
sketch2.addGeometry(Part.Circle(V(2303.6, 30, 0), V(0, 0, 1), 2.5), False)
sketch2.addGeometry(Part.Circle(V(2303.6, 60, 0), V(0, 0, 1), 2.5), False)
sketch2.addGeometry(Part.Circle(V(2303.6, 155, 0), V(0, 0, 1), 2.5), False)
sketch2.addGeometry(Part.Circle(V(2303.6, 90, 0), V(0, 0, 1), 2.5), False)
sketch2.addGeometry(Part.Circle(V(2303.6, 220, 0), V(0, 0, 1), 2.5), False)
sketch2.addGeometry(Part.Circle(V(2303.6, 250, 0), V(0, 0, 1), 2.5), False)
sketch2.addGeometry(Part.Circle(V(2303.6, 280, 0), V(0, 0, 1), 2.5), False)
sketch2.addConstraint(Sketcher.Constraint("Equal", 0, 1))
sketch2.addConstraint(Sketcher.Constraint("Equal", 1, 2))
sketch2.addConstraint(Sketcher.Constraint("Equal", 2, 3))
sketch2.addConstraint(Sketcher.Constraint("Equal", 3, 4))
sketch2.addConstraint(Sketcher.Constraint("Equal", 4, 5))
sketch2.addConstraint(Sketcher.Constraint("Equal", 5, 6))
sketch2.addConstraint(Sketcher.Constraint("Vertical", 0, 3, 1, 3))
sketch2.addConstraint(Sketcher.Constraint("Vertical", 1, 3, 2, 3))
sketch2.addConstraint(Sketcher.Constraint("Vertical", 2, 3, 3, 3))
sketch2.addConstraint(Sketcher.Constraint("Vertical", 3, 3, 4, 3))
sketch2.addConstraint(Sketcher.Constraint("Vertical", 4, 3, 5, 3))
sketch2.addConstraint(Sketcher.Constraint("Vertical", 5, 3, 6, 3))
sketch2.addConstraint(Sketcher.Constraint("Diameter", 0, 5.0))
sketch2.addConstraint(Sketcher.Constraint("DistanceY", -1, 1, 0, 3, 30.0))
sketch2.addConstraint(Sketcher.Constraint("DistanceY", -1, 1, 1, 3, 60.0))
sketch2.addConstraint(Sketcher.Constraint("DistanceY", -1, 1, 2, 3, 155.0))
sketch2.addConstraint(Sketcher.Constraint("DistanceY", -1, 1, 3, 3, 90.0))
sketch2.addConstraint(Sketcher.Constraint("DistanceY", -1, 1, 4, 3, 220.0))
sketch2.addConstraint(Sketcher.Constraint("DistanceY", -1, 1, 5, 3, 250.0))
sketch2.addConstraint(Sketcher.Constraint("DistanceY", -1, 1, 6, 3, 280.0))
sketch2.addConstraint(Sketcher.Constraint("DistanceX", -1, 1, 0, 3, 2303.613927))
pocket1 = doc.addObject("PartDesign::Pocket", "Pocket")
body.addObject(pocket1)
pocket1.Profile = sketch2
pocket1.Type = "ThroughAll"
pocket1.Reversed = True

doc.recompute()
